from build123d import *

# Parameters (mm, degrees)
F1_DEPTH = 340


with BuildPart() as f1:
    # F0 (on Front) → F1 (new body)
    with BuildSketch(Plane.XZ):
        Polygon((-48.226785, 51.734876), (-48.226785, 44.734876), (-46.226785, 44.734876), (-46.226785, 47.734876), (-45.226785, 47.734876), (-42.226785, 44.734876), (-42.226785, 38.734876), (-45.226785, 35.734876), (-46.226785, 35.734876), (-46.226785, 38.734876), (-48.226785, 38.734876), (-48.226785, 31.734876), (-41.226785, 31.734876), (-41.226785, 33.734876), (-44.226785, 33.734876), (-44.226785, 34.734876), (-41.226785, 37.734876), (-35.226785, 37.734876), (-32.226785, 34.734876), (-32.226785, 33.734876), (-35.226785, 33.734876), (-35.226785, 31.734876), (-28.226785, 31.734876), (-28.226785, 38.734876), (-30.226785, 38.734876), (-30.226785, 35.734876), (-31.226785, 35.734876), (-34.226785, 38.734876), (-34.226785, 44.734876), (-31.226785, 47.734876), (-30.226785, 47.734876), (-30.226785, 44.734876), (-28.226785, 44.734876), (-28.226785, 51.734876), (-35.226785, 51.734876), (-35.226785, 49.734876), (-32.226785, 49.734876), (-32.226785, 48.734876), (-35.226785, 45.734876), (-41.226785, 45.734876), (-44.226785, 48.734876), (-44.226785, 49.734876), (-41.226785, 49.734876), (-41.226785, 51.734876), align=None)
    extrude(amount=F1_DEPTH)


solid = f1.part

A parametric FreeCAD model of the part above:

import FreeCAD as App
import Part
import Sketcher


def add_polygon(sketch, points):
    """Adds a closed chain of lines whose ends are joined by coincident constraints."""
    first, n = sketch.GeometryCount, len(points)
    for a, b in zip(points, points[1:] + points[:1]):
        sketch.addGeometry(Part.LineSegment(App.Vector(*a, 0), App.Vector(*b, 0)), False)
    for i in range(n):
        sketch.addConstraint(Sketcher.Constraint("Coincident", first + i, 2, first + (i + 1) % n, 1))

doc = App.newDocument("Part")
params = doc.addObject("Spreadsheet::Sheet", "Params")
for row, (alias, value) in enumerate([
    ("sketch1_width", "2 mm"),
    ("sketch1_width2", "1 mm"),
    ("sketch1_width3", "7 mm"),
    ("sketch1_width4", "3 mm"),
    ("sketch1_width5", "6 mm"),
    ("pad1_length", "340 mm"),
], start=1):
    params.set(f"A{row}", alias)
    params.set(f"B{row}", "=" + value)
    params.setAlias(f"B{row}", alias)

body = doc.addObject("PartDesign::Body", "Body")

sketch1 = body.newObject("Sketcher::SketchObject", "Sketch")
sketch1.AttachmentSupport = (doc.getObject("XZ_Plane"), [""])
sketch1.MapMode = "FlatFace"
add_polygon(sketch1, [(-48.2, 51.7), (-48.2, 44.7), (-46.2, 44.7), (-46.2, 47.7), (-45.2, 47.7), (-42.2, 44.7), (-42.2, 38.7), (-45.2, 35.7), (-46.2, 35.7), (-46.2, 38.7), (-48.2, 38.7), (-48.2, 31.7), (-41.2, 31.7), (-41.2, 33.7), (-44.2, 33.7), (-44.2, 34.7), (-41.2, 37.7), (-35.2, 37.7), (-32.2, 34.7), (-32.2, 33.7), (-35.2, 33.7), (-35.2, 31.7), (-28.2, 31.7), (-28.2, 38.7), (-30.2, 38.7), (-30.2, 35.7), (-31.2, 35.7), (-34.2, 38.7), (-34.2, 44.7), (-31.2, 47.7), (-30.2, 47.7), (-30.2, 44.7), (-28.2, 44.7), (-28.2, 51.7), (-35.2, 51.7), (-35.2, 49.7), (-32.2, 49.7), (-32.2, 48.7), (-35.2, 45.7), (-41.2, 45.7), (-44.2, 48.7), (-44.2, 49.7), (-41.2, 49.7), (-41.2, 51.7)])
sketch1.addConstraint(Sketcher.Constraint("Vertical", 0))
sketch1.addConstraint(Sketcher.Constraint("Horizontal", 1))
sketch1.addConstraint(Sketcher.Constraint("Vertical", 2))
sketch1.addConstraint(Sketcher.Constraint("Horizontal", 3))
sketch1.addConstraint(Sketcher.Constraint("Vertical", 5))
sketch1.addConstraint(Sketcher.Constraint("Horizontal", 7))
sketch1.addConstraint(Sketcher.Constraint("Vertical", 8))
sketch1.addConstraint(Sketcher.Constraint("Horizontal", 9))
sketch1.addConstraint(Sketcher.Constraint("Vertical", 10))
sketch1.addConstraint(Sketcher.Constraint("Horizontal", 11))
sketch1.addConstraint(Sketcher.Constraint("Vertical", 12))
sketch1.addConstraint(Sketcher.Constraint("Horizontal", 13))
sketch1.addConstraint(Sketcher.Constraint("Vertical", 14))
sketch1.addConstraint(Sketcher.Constraint("Horizontal", 16))
sketch1.addConstraint(Sketcher.Constraint("Vertical", 18))
sketch1.addConstraint(Sketcher.Constraint("Horizontal", 19))
sketch1.addConstraint(Sketcher.Constraint("Vertical", 20))
sketch1.addConstraint(Sketcher.Constraint("Horizontal", 21))
sketch1.addConstraint(Sketcher.Constraint("Vertical", 22))
sketch1.addConstraint(Sketcher.Constraint("Horizontal", 23))
sketch1.addConstraint(Sketcher.Constraint("Vertical", 24))
sketch1.addConstraint(Sketcher.Constraint("Horizontal", 25))
sketch1.addConstraint(Sketcher.Constraint("Vertical", 27))
sketch1.addConstraint(Sketcher.Constraint("Horizontal", 29))
sketch1.addConstraint(Sketcher.Constraint("Vertical", 30))
sketch1.addConstraint(Sketcher.Constraint("Horizontal", 31))
sketch1.addConstraint(Sketcher.Constraint("Vertical", 32))
sketch1.addConstraint(Sketcher.Constraint("Horizontal", 33))
sketch1.addConstraint(Sketcher.Constraint("Vertical", 34))
sketch1.addConstraint(Sketcher.Constraint("Horizontal", 35))
sketch1.addConstraint(Sketcher.Constraint("Vertical", 36))
sketch1.addConstraint(Sketcher.Constraint("Horizontal", 38))
sketch1.addConstraint(Sketcher.Constraint("Vertical", 40))
sketch1.addConstraint(Sketcher.Constraint("Horizontal", 41))
sketch1.addConstraint(Sketcher.Constraint("Vertical", 42))
sketch1.addConstraint(Sketcher.Constraint("Horizontal", 43))
sketch1.addConstraint(Sketcher.Constraint("Perpendicular", 4, 6))
sketch1.addConstraint(Sketcher.Constraint("Parallel", 6, 15))
sketch1.addConstraint(Sketcher.Constraint("Perpendicular", 15, 17))
sketch1.addConstraint(Sketcher.Constraint("Parallel", 17, 26))
sketch1.addConstraint(Sketcher.Constraint("Perpendicular", 26, 28))
sketch1.addConstraint(Sketcher.Constraint("Parallel", 28, 37))
sketch1.addConstraint(Sketcher.Constraint("Perpendicular", 37, 39))
sketch1.addConstraint(Sketcher.Constraint("Horizontal", 1, 2, 4, 2))
sketch1.addConstraint(Sketcher.Constraint("Horizontal", 5, 2, 8, 2))
sketch1.addConstraint(Sketcher.Constraint("Horizontal", 14, 2, 17, 2))
sketch1.addConstraint(Sketcher.Constraint("Horizontal", 13, 2, 18, 2))
sketch1.addConstraint(Sketcher.Constraint("Horizontal", 11, 2, 20, 2))
sketch1.addConstraint(Sketcher.Constraint("Horizontal", 9, 2, 22, 2))
sketch1.addConstraint(Sketcher.Constraint("Horizontal", 7, 2, 24, 2))
sketch1.addConstraint(Sketcher.Constraint("Horizontal", 23, 2, 26, 2))
sketch1.addConstraint(Sketcher.Constraint("Horizontal", 4, 2, 27, 2))
sketch1.addConstraint(Sketcher.Constraint("Horizontal", 3, 2, 28, 2))
sketch1.addConstraint(Sketcher.Constraint("Horizontal", 27, 2, 30, 2))
sketch1.addConstraint(Sketcher.Constraint("Horizontal", 36, 2, 39, 2))
sketch1.addConstraint(Sketcher.Constraint("Horizontal", 35, 2, 40, 2))
sketch1.addConstraint(Sketcher.Constraint("Horizontal", 33, 2, 42, 2))
sketch1.addConstraint(Sketcher.Constraint("Vertical", 3, 2, 6, 2))
sketch1.addConstraint(Sketcher.Constraint("Vertical", 2, 2, 7, 2))
sketch1.addConstraint(Sketcher.Constraint("Vertical", 0, 2, 9, 2))
sketch1.addConstraint(Sketcher.Constraint("Vertical", 12, 2, 15, 2))
sketch1.addConstraint(Sketcher.Constraint("Vertical", 16, 2, 19, 2))
sketch1.addConstraint(Sketcher.Constraint("Vertical", 25, 2, 28, 2))
sketch1.addConstraint(Sketcher.Constraint("Vertical", 24, 2, 29, 2))
sketch1.addConstraint(Sketcher.Constraint("Vertical", 22, 2, 31, 2))
sketch1.addConstraint(Sketcher.Constraint("Vertical", 20, 2, 33, 2))
sketch1.addConstraint(Sketcher.Constraint("Vertical", 18, 2, 35, 2))
sketch1.addConstraint(Sketcher.Constraint("Vertical", 34, 2, 37, 2))
sketch1.addConstraint(Sketcher.Constraint("Vertical", 15, 2, 38, 2))
sketch1.addConstraint(Sketcher.Constraint("Vertical", 38, 2, 41, 2))
sketch1.addConstraint(Sketcher.Constraint("Equal", 11, 21))
sketch1.addConstraint(Sketcher.Constraint("Equal", 9, 23))
sketch1.addConstraint(Sketcher.Constraint("Equal", 7, 25))
sketch1.addConstraint(Sketcher.Constraint("Equal", 43, 0))
sketch1.addConstraint(Sketcher.Constraint("Equal", 41, 2))
sketch1.addConstraint(Sketcher.Constraint("Equal", 38, 5))
sketch1.addConstraint(Sketcher.Constraint("Equal", 0, 10))
sketch1.addConstraint(Sketcher.Constraint("Equal", 31, 12))
sketch1.addConstraint(Sketcher.Constraint("Equal", 29, 14))
sketch1.addConstraint(Sketcher.Constraint("Equal", 20, 34))
sketch1.addConstraint(Sketcher.Constraint("Equal", 18, 36))
sketch1.addConstraint(Sketcher.Constraint("DistanceX", 1, 1, 1, 2, 2.0))
sketch1.addConstraint(Sketcher.Constraint("DistanceX", 3, 1, 3, 2, 1.0))
sketch1.addConstraint(Sketcher.Constraint("DistanceX", 11, 1, 11, 2, 7.0))
sketch1.addConstraint(Sketcher.Constraint("DistanceX", 13, 2, 13, 1, 3.0))
sketch1.addConstraint(Sketcher.Constraint("DistanceX", 16, 1, 16, 2, 6.0))
sketch1.addConstraint(Sketcher.Constraint("DistanceX", 0, 2, -1, 1, 48.226785))
sketch1.addConstraint(Sketcher.Constraint("DistanceY", -1, 1, 0, 2, 44.734876))
sketch1.setExpression("Constraints[125]", "Params.sketch1_width")
sketch1.setExpression("Constraints[126]", "Params.sketch1_width2")
sketch1.setExpression("Constraints[127]", "Params.sketch1_width3")
sketch1.setExpression("Constraints[128]", "Params.sketch1_width4")
sketch1.setExpression("Constraints[129]", "Params.sketch1_width5")
pad1 = body.newObject("PartDesign::Pad", "Pad")
pad1.Profile = sketch1
pad1.setExpression("Length", "Params.pad1_length")

doc.recompute()
